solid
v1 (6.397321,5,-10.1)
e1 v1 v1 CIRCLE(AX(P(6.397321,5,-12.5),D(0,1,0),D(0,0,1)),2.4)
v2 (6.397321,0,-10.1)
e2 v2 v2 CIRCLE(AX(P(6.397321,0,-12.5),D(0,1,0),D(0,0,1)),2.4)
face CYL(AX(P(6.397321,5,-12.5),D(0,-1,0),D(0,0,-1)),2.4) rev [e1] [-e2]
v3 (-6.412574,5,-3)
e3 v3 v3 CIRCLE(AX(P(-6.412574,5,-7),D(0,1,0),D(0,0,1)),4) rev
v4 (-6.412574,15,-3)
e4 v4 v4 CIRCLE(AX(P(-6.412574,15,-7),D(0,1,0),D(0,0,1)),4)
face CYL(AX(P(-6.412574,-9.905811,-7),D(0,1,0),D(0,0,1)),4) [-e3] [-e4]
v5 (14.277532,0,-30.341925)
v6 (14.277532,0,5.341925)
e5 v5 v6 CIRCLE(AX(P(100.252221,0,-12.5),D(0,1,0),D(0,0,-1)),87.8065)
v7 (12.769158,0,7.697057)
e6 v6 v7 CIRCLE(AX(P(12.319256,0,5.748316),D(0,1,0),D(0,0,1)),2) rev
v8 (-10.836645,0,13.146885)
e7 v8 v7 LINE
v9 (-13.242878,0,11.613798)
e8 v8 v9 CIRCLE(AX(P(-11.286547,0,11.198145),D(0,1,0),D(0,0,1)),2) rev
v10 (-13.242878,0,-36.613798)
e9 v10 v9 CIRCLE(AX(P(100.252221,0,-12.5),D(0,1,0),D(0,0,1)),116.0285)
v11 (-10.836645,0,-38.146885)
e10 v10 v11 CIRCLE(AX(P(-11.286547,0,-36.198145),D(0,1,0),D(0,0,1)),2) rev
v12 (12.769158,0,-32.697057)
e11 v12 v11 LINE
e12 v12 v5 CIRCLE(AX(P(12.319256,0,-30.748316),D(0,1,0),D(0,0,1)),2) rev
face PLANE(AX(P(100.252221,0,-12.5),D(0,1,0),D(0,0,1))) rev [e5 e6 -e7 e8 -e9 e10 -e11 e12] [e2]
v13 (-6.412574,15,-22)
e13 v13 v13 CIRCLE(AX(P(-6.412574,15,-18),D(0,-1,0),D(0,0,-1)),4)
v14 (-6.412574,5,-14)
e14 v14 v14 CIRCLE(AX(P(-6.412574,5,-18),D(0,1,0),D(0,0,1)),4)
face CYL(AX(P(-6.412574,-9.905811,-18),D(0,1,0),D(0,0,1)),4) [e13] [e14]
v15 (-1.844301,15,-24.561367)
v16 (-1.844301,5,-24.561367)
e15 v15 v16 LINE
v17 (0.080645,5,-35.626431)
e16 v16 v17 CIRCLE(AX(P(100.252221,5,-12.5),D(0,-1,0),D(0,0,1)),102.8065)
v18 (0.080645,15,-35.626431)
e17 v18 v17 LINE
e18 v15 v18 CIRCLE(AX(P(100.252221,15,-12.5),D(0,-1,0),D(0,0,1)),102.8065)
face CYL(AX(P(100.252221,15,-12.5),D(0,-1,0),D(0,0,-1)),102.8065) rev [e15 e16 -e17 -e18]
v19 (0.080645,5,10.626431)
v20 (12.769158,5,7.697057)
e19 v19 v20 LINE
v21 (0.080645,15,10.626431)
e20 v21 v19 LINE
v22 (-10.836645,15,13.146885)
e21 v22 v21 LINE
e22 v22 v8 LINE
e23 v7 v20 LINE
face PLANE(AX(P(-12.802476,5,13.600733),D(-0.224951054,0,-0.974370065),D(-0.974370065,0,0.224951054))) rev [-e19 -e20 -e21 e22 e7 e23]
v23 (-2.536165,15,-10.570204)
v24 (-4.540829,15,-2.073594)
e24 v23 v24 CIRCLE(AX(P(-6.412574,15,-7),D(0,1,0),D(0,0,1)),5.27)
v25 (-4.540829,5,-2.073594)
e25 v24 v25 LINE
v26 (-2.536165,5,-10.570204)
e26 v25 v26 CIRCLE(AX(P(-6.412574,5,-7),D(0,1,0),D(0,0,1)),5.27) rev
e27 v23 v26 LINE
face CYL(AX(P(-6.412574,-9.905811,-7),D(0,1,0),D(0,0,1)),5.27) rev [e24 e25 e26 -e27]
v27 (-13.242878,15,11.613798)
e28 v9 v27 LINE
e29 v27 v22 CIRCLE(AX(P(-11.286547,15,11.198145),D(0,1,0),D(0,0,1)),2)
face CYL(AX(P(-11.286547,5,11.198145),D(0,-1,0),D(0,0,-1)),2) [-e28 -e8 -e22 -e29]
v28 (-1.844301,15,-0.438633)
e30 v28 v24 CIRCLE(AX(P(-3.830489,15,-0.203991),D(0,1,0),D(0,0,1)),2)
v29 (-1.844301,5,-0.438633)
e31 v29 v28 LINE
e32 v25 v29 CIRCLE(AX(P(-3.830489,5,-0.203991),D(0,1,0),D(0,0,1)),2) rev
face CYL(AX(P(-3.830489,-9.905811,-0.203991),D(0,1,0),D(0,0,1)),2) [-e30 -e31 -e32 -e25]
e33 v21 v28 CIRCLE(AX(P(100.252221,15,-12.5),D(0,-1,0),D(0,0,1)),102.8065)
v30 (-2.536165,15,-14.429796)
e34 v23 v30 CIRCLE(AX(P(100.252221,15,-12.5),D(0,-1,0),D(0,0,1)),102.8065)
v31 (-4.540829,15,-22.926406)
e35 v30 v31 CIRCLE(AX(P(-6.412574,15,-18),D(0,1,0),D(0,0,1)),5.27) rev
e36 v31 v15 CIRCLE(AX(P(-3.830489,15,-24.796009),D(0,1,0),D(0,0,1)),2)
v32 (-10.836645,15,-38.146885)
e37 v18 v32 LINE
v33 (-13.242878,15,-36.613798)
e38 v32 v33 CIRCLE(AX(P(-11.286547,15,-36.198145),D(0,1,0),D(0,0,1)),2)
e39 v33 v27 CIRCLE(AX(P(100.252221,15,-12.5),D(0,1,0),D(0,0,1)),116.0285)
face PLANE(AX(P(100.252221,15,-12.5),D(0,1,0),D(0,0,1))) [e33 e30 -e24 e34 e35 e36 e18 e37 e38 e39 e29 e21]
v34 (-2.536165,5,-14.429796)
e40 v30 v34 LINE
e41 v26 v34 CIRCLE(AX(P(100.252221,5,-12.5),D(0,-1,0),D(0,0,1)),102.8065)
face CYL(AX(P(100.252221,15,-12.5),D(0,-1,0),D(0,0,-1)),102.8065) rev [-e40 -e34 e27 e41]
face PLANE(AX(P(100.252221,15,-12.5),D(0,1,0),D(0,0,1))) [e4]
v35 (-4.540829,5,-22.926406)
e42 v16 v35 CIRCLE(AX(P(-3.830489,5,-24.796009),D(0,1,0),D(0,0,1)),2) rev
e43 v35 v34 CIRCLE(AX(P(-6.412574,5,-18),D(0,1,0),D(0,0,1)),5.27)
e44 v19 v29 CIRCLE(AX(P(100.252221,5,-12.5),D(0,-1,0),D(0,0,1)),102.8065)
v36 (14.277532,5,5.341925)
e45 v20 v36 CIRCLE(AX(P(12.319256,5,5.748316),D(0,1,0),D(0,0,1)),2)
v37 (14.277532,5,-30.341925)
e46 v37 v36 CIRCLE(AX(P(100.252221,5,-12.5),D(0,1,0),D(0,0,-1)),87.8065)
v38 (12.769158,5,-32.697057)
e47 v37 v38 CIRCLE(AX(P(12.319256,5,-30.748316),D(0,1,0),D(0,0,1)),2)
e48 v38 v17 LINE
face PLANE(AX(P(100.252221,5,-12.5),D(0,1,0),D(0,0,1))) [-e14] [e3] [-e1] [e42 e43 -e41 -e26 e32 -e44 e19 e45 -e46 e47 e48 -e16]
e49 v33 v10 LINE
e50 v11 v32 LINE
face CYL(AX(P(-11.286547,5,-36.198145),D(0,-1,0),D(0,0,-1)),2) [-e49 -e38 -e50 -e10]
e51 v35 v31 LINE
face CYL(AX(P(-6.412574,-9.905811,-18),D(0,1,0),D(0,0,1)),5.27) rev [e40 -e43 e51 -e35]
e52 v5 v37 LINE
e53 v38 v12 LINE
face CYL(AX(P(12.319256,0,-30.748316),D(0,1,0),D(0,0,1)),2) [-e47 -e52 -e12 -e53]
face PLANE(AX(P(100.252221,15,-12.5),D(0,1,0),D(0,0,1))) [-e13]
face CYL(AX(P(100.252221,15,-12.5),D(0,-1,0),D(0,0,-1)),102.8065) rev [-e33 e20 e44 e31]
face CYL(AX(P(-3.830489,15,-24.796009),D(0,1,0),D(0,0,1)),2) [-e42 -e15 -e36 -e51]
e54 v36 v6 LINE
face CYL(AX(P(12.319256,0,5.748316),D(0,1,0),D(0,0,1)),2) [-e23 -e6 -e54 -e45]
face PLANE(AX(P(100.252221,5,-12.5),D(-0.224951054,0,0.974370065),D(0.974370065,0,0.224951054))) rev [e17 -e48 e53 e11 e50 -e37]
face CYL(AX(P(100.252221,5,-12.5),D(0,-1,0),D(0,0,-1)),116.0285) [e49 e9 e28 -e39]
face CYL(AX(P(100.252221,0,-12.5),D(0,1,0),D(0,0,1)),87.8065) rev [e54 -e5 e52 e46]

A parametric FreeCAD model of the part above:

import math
import FreeCAD as App
import Part
import Sketcher
from FreeCAD import Vector
Q = App.Units.Quantity


def edges_at(feature, points):
    """Names of the edges that pass closest to the given points."""
    edges = feature.Shape.Edges
    near = lambda p: min(range(len(edges)), key=lambda i: edges[i].distToShape(Part.Vertex(*p))[0])
    return sorted({f"Edge{near(p) + 1}" for p in points})

doc = App.newDocument("Part")
body = doc.addObject("PartDesign::Body", "Body")

sketch1 = doc.addObject("Sketcher::SketchObject", "Sketch")
body.addObject(sketch1)
sketch1.AttachmentSupport = (doc.XZ_Plane, [""])
sketch1.MapMode = "FlatFace"
sketch1.addGeometry([
    Part.LineSegment(Vector(100.3, -12.5, 0), Vector(-12.8, -38.6, 0)),
    Part.ArcOfCircle(Part.Circle(Vector(100.3, -12.5, 0), Vector(0, 0, 1), 116), math.radians(167), math.radians(193)),
    Part.LineSegment(Vector(-12.8, 13.6, 0), Vector(100.3, -12.5, 0)),
    Part.Circle(Vector(6.4, -12.5, 0), Vector(0, 0, 1), 2.4),
], False)
sketch1.addConstraint([
    Sketcher.Constraint("Coincident", 0, 2, 1, 2),
    Sketcher.Constraint("Coincident", 1, 1, 2, 1),
    Sketcher.Constraint("Coincident", 2, 2, 0, 1),
    Sketcher.Constraint("Coincident", 2, 2, 1, 3),
    Sketcher.Constraint("Horizontal", 1, 3, 3, 3),
    Sketcher.Constraint("Vertical", 0, 2, 1, 1),
    Sketcher.Constraint("Diameter", 3, Q("4.8 mm")),
    Sketcher.Constraint("Angle", 0, Q("-167 deg")),
    Sketcher.Constraint("DistanceY", 1, 3, -1, 1, Q("12.5 mm")),
    Sketcher.Constraint("Radius", 1, Q("116.0285 mm")),
    Sketcher.Constraint("DistanceX", 3, 3, 1, 3, Q("93.8549 mm")),
    Sketcher.Constraint("DistanceX", -1, 1, 1, 3, Q("100.252221 mm")),
])
pad1 = doc.addObject("PartDesign::Pad", "Pad")
body.addObject(pad1)
pad1.Profile = sketch1
pad1.Length = 5
pad1.Reversed = True

sketch2 = doc.addObject("Sketcher::SketchObject", "Sketch001")
body.addObject(sketch2)
sketch2.AttachmentSupport = (doc.XZ_Plane, [""])
sketch2.MapMode = "FlatFace"
sketch2.AttachmentOffset = App.Placement(Vector(0, 0, -5), App.Rotation())
sketch2.addGeometry([
    Part.LineSegment(Vector(-13, 14, 0), Vector(0, 11, 0)),
    Part.ArcOfCircle(Part.Circle(Vector(100, -12, 0), Vector(0, 0, 1), 103), math.radians(167), math.radians(193)),
    Part.LineSegment(Vector(0, -36, 0), Vector(-13, -39, 0)),
    Part.ArcOfCircle(Part.Circle(Vector(100, -12, 0), Vector(0, 0, 1), 116), math.radians(167), math.radians(193)),
], False)
sketch2.addConstraint([
    Sketcher.Constraint("Coincident", 0, 2, 1, 1),
    Sketcher.Constraint("Coincident", 1, 2, 2, 1),
    Sketcher.Constraint("Coincident", 2, 2, 3, 2),
    Sketcher.Constraint("Coincident", 3, 1, 0, 1),
    Sketcher.Constraint("Coincident", 3, 3, 1, 3),
    Sketcher.Constraint("Vertical", 0, 2, 1, 2),
    Sketcher.Constraint("Vertical", 2, 2, 3, 1),
    Sketcher.Constraint("Angle", 0, Q("-13 deg")),
    Sketcher.Constraint("DistanceY", 1, 3, -1, 1, Q("12.5 mm")),
    Sketcher.Constraint("Radius", 1, Q("102.8065 mm")),
    Sketcher.Constraint("Radius", 3, Q("116.0285 mm")),
    Sketcher.Constraint("DistanceX", -1, 1, 1, 3, Q("100.252221 mm")),
    Sketcher.Constraint("DistanceY", -1, 1, 0, 2, Q("10.626431 mm")),
])
pad2 = doc.addObject("PartDesign::Pad", "Pad001")
body.addObject(pad2)
pad2.Profile = sketch2
pad2.Length = 10
pad2.Reversed = True

sketch3 = doc.addObject("Sketcher::SketchObject", "Sketch002")
body.addObject(sketch3)
sketch3.AttachmentSupport = (doc.XZ_Plane, [""])
sketch3.MapMode = "FlatFace"
sketch3.AttachmentOffset = App.Placement(Vector(0, 0, -15), App.Rotation())
sketch3.addGeometry([
    Part.Circle(Vector(-6.4, -7, 0), Vector(0, 0, 1), 5.3),
    Part.Circle(Vector(-6.4, -7, 0), Vector(0, 0, 1), 4),
], False)
sketch3.addConstraint([
    Sketcher.Constraint("Coincident", 1, 3, 0, 3),
    Sketcher.Constraint("Diameter", 1, Q("8 mm")),
    Sketcher.Constraint("Diameter", 0, Q("10.54 mm")),
    Sketcher.Constraint("DistanceY", 0, 3, -1, 1, Q("7 mm")),
    Sketcher.Constraint("DistanceX", 0, 3, -1, 1, Q("6.412574 mm")),
])
pocket1 = doc.addObject("PartDesign::Pocket", "Pocket")
body.addObject(pocket1)
pocket1.Profile = sketch3
pocket1.Length = 10
pocket1.Reversed = True
doc.recompute()

datumplane = doc.addObject("PartDesign::Plane", "DatumPlane")
body.addObject(datumplane)
datumplane.AttachmentSupport = (doc.XY_Plane, [""])
datumplane.MapMode = "FlatFace"
datumplane.AttachmentOffset = App.Placement(Vector(0, 0, -12.5), App.Rotation())
mirrored = doc.addObject("PartDesign::Mirrored", "Mirrored")
body.addObject(mirrored)
mirrored.Originals = [pocket1]
mirrored.MirrorPlane = (datumplane, [""])
body.Tip = mirrored

sketch4 = doc.addObject("Sketcher::SketchObject", "Sketch003")
body.addObject(sketch4)
sketch4.AttachmentSupport = (doc.XZ_Plane, [""])
sketch4.MapMode = "FlatFace"
sketch4.AttachmentOffset = App.Placement(Vector(0, 0, -5), App.Rotation())
sketch4.addGeometry([
    Part.LineSegment(Vector(15, 7, 0), Vector(100, -12, 0)),
    Part.LineSegment(Vector(100, -12, 0), Vector(15, -32, 0)),
    Part.ArcOfCircle(Part.Circle(Vector(100, -12, 0), Vector(0, 0, 1), 88), math.radians(167), math.radians(193)),
], False)
sketch4.addConstraint([
    Sketcher.Constraint("Coincident", 0, 2, 1, 1),
    Sketcher.Constraint("Coincident", 1, 2, 2, 2),
    Sketcher.Constraint("Coincident", 2, 1, 0, 1),
    Sketcher.Constraint("Coincident", 0, 2, 2, 3),
    Sketcher.Constraint("Vertical", 1, 2, 2, 1),
    Sketcher.Constraint("Angle", 0, Q("-13 deg")),
    Sketcher.Constraint("DistanceY", 2, 3, -1, 1, Q("12.5 mm")),
    Sketcher.Constraint("Radius", 2, Q("87.8065 mm")),
    Sketcher.Constraint("DistanceX", -1, 1, 2, 3, Q("100.252221 mm")),
])
pocket2 = doc.addObject("PartDesign::Pocket", "Pocket001")
body.addObject(pocket2)
pocket2.Profile = sketch4
pocket2.Type = "ThroughAll"
pocket2.Reversed = True
doc.recompute()

fillet = doc.addObject("PartDesign::Fillet", "Fillet")
body.addObject(fillet)
fillet.Base = (pocket2, edges_at(pocket2, [
    (-2.19, 10, -3.847),
    (-2.19, 10, -21.153),
    (-12.802, 10, 13.601),
    (14.696, 2.5, -32.252),
    (-12.802, 10, -38.601),
    (14.696, 2.5, 7.252),
]))
fillet.Radius = 2

doc.recompute()
